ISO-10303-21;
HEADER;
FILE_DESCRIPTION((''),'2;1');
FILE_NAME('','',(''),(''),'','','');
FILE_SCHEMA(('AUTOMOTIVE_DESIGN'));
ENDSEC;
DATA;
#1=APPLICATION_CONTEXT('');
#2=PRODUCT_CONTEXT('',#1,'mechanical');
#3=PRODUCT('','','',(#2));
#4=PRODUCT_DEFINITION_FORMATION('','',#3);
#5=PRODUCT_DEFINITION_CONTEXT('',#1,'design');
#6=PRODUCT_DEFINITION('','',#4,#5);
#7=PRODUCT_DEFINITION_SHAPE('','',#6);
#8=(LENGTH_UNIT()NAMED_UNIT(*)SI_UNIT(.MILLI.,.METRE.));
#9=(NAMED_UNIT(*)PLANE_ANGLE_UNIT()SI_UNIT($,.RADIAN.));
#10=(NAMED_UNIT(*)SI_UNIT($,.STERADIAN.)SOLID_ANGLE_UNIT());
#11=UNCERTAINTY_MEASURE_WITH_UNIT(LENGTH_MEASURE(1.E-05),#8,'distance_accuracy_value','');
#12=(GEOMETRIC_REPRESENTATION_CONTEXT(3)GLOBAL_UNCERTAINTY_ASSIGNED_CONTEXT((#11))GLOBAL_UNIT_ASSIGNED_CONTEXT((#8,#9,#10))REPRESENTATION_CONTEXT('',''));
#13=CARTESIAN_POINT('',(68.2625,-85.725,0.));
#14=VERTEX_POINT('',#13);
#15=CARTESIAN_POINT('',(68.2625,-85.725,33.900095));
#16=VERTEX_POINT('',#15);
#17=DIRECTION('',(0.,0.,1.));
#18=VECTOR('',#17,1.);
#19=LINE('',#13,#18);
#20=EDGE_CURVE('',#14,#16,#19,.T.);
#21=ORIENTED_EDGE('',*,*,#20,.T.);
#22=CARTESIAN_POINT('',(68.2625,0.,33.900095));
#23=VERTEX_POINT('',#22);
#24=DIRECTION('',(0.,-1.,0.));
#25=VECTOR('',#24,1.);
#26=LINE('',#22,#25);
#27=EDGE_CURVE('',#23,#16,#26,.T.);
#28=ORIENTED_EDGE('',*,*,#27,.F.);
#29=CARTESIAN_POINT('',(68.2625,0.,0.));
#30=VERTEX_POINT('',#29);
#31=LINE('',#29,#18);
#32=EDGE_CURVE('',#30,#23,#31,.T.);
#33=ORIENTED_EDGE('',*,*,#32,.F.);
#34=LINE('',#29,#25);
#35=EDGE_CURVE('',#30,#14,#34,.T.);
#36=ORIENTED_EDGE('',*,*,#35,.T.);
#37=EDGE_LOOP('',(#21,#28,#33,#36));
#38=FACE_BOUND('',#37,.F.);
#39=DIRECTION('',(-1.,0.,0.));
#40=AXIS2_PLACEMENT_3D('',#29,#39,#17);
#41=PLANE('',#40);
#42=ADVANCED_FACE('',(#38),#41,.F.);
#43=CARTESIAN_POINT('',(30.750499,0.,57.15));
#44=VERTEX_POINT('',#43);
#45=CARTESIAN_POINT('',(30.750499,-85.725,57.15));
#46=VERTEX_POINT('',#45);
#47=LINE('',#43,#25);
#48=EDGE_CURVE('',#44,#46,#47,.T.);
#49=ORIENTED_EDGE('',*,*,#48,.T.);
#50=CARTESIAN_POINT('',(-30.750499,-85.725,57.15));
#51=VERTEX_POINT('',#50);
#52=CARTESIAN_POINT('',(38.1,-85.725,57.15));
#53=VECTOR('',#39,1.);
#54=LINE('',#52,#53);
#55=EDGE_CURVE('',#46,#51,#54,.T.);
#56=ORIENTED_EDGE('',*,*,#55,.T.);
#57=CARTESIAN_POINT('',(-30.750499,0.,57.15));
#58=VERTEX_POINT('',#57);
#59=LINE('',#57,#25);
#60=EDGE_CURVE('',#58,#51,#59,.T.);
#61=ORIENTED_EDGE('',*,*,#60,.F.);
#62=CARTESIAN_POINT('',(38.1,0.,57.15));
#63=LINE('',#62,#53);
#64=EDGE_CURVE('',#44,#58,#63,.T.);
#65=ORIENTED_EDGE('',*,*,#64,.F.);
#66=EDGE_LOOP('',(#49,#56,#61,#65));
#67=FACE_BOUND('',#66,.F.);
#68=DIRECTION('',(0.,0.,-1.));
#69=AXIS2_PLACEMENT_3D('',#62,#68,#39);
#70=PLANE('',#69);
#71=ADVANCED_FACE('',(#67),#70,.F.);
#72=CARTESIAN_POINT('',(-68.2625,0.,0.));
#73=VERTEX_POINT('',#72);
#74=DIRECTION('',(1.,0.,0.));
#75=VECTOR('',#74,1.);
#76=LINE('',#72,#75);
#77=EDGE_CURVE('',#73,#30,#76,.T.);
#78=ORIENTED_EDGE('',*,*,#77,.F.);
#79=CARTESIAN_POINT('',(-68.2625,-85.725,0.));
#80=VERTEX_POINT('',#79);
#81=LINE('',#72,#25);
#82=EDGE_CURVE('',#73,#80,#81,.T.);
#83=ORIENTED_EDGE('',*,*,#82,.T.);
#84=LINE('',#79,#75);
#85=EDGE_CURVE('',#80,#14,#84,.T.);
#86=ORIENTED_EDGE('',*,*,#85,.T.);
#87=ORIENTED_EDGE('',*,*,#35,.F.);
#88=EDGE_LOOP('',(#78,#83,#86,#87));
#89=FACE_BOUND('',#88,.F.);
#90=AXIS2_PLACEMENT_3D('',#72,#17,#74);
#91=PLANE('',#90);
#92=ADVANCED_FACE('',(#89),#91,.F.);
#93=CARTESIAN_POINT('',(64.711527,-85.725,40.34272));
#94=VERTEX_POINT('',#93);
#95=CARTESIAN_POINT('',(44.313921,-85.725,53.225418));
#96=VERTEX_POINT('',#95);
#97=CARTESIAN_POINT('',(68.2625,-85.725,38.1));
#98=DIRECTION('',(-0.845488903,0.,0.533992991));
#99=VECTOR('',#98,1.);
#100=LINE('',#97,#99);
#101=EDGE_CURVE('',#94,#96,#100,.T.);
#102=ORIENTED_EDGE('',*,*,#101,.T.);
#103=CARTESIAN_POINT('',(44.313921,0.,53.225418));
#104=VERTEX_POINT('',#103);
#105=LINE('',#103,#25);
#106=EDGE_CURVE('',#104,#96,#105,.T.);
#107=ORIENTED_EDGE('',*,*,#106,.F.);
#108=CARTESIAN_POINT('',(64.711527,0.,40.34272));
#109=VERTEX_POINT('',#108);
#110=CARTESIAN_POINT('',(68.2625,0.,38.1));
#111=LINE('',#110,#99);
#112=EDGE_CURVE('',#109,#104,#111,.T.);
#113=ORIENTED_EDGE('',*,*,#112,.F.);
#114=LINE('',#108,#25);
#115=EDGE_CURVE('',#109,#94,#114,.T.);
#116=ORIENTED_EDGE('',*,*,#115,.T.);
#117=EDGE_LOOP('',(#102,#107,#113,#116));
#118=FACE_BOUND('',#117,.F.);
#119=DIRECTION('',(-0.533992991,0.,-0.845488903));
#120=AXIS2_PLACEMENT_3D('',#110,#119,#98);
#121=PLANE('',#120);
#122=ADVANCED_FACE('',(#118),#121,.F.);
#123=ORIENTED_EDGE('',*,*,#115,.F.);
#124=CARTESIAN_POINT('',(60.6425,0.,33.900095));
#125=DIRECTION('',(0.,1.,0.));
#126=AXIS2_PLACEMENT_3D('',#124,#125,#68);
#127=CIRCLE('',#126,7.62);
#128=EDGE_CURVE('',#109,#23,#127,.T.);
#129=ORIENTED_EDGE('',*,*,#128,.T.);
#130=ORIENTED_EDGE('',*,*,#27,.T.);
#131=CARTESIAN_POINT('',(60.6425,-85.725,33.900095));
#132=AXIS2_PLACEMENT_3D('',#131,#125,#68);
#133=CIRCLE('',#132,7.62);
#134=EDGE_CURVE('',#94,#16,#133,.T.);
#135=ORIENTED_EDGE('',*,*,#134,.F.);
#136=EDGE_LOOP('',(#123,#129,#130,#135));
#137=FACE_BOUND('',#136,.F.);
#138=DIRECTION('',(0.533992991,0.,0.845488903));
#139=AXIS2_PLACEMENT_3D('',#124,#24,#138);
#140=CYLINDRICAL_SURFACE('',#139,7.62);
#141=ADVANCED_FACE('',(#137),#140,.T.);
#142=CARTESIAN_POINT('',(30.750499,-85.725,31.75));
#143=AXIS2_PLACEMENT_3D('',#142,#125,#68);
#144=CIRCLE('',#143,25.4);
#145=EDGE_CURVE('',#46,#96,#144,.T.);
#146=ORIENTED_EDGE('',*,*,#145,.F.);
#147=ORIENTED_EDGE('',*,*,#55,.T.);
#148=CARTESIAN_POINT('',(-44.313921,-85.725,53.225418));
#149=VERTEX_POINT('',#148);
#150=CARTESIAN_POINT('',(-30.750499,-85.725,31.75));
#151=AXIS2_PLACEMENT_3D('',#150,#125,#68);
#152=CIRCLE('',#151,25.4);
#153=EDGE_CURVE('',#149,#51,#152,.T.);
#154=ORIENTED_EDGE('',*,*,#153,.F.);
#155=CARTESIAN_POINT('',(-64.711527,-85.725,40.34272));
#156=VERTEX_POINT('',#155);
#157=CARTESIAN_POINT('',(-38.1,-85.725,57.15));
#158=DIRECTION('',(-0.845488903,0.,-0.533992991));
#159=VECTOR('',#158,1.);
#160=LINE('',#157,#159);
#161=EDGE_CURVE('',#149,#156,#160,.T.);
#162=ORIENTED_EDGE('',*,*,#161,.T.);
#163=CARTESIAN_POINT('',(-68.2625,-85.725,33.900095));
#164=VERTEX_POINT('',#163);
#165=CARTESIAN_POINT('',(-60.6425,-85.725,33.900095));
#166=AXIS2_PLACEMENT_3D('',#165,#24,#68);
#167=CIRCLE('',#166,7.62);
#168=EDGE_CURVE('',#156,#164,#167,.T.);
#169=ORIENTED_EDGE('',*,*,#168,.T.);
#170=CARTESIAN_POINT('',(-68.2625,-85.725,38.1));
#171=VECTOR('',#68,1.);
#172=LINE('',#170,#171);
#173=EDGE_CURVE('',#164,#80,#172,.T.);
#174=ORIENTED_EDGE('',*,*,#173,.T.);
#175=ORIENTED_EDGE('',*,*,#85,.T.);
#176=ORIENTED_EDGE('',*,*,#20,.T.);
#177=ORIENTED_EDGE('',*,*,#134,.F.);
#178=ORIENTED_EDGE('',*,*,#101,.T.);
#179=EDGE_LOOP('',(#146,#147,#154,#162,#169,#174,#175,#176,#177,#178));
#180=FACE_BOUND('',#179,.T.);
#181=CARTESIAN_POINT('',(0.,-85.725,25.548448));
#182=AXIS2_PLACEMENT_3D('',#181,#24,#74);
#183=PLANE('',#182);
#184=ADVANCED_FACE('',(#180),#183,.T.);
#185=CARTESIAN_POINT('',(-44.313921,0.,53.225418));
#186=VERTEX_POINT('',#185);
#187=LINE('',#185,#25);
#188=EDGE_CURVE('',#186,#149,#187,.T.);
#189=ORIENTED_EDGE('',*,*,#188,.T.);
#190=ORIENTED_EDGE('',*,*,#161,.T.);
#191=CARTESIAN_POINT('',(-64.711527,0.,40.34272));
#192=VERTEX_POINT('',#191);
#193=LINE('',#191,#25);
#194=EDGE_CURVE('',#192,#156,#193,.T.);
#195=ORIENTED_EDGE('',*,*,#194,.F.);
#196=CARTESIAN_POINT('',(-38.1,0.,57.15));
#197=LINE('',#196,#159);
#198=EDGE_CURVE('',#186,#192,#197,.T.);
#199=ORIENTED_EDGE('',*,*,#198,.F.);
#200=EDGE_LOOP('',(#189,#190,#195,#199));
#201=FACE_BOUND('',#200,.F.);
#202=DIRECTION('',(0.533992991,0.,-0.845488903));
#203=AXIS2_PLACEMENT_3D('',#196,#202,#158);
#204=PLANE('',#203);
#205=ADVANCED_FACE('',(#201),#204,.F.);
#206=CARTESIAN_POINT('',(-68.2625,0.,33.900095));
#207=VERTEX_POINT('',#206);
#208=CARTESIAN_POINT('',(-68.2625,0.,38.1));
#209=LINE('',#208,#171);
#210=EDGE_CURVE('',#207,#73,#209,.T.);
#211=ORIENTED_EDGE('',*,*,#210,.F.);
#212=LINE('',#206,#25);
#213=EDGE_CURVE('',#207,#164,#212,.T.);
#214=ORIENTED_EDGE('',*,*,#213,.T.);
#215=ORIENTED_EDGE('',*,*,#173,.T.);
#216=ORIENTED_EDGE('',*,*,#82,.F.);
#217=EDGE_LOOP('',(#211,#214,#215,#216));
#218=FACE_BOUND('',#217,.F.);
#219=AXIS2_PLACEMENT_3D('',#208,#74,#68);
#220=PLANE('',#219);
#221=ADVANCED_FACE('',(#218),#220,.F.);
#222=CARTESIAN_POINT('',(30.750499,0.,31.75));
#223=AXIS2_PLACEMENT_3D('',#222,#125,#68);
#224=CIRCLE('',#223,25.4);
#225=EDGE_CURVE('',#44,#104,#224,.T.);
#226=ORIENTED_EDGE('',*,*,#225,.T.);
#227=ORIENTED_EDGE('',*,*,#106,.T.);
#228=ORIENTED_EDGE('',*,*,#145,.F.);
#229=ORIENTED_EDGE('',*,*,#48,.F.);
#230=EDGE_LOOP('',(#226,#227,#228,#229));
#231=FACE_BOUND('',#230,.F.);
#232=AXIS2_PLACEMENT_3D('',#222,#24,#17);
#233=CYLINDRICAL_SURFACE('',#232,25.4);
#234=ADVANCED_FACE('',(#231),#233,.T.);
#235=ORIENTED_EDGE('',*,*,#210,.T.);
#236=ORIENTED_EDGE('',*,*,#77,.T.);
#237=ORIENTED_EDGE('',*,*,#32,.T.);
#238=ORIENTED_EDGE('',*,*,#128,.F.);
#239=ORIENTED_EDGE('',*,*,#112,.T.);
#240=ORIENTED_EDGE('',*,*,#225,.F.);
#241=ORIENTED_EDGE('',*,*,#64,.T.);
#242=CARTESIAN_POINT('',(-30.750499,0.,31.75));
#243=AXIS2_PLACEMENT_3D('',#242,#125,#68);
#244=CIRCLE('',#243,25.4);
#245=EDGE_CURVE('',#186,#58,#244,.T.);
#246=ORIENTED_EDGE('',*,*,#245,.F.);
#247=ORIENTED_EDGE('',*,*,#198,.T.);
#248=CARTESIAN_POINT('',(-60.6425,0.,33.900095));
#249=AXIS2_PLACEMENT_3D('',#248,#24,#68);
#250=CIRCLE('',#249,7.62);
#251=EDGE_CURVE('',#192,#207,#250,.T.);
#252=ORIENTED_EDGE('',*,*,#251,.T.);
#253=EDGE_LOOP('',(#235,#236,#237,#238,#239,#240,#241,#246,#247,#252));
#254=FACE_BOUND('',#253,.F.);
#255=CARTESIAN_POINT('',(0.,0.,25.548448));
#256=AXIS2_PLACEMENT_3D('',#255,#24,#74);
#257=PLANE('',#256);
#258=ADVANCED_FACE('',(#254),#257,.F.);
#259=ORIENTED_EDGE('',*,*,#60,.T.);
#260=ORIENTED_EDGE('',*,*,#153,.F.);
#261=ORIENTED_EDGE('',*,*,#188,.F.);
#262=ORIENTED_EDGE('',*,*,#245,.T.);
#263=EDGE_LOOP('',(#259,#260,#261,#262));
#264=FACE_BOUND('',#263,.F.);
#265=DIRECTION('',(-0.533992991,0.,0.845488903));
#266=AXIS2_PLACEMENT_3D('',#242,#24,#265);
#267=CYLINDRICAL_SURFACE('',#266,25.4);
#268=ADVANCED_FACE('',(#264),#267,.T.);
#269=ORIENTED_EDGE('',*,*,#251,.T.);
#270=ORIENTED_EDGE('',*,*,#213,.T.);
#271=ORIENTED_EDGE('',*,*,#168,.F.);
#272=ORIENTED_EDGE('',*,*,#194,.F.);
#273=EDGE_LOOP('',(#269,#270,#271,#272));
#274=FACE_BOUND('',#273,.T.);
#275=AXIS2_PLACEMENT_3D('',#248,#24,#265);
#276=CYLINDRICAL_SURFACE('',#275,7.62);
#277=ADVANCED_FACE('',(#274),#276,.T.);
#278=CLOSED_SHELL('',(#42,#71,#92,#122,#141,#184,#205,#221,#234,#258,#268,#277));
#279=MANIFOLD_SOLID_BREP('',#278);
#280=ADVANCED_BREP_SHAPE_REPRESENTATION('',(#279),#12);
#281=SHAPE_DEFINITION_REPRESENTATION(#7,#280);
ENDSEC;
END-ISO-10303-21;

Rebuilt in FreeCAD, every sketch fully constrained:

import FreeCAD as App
import Part
import Sketcher
from FreeCAD import Vector
Q = App.Units.Quantity


def edges_at(feature, points):
    """Names of the edges that pass closest to the given points."""
    edges = feature.Shape.Edges
    near = lambda p: min(range(len(edges)), key=lambda i: edges[i].distToShape(Part.Vertex(*p))[0])
    return sorted({f"Edge{near(p) + 1}" for p in points})

doc = App.newDocument("Part")
params = doc.addObject("Spreadsheet::Sheet", "Params")
for row, (alias, value) in enumerate([
    ("sketch1_width", "3 in"),
    ("sketch1_height", "1.5 in"),
    ("sketch1_width2", "5.375 in"),
    ("pad1_length", "3.375 in"),
    ("fillet_radius", "0.3 in"),
    ("fillet2_radius", "1 in"),
    ("fillet3_radius", "1 in"),
    ("fillet4_radius", "0.3 in"),
], start=1):
    params.set(f"A{row}", alias)
    params.set(f"B{row}", "=" + value)
    params.setAlias(f"B{row}", alias)

body = doc.addObject("PartDesign::Body", "Body")

# Sketch on XZ plane
sketch1 = doc.addObject("Sketcher::SketchObject", "Sketch")
body.addObject(sketch1)
sketch1.AttachmentSupport = (doc.XZ_Plane, [""])
sketch1.MapMode = "FlatFace"
sketch1.addGeometry(Part.LineSegment(Vector(-68, 0, 0), Vector(68, 0, 0)), False)
sketch1.addGeometry(Part.LineSegment(Vector(68, 0, 0), Vector(68, 38, 0)), False)
sketch1.addGeometry(Part.LineSegment(Vector(68, 38, 0), Vector(38, 57, 0)), False)
sketch1.addGeometry(Part.LineSegment(Vector(38, 57, 0), Vector(-38, 57, 0)), False)
sketch1.addGeometry(Part.LineSegment(Vector(-38, 57, 0), Vector(-68, 38, 0)), False)
sketch1.addGeometry(Part.LineSegment(Vector(-68, 38, 0), Vector(-68, 0, 0)), False)
sketch1.addConstraint(Sketcher.Constraint("Coincident", 0, 2, 1, 1))
sketch1.addConstraint(Sketcher.Constraint("Coincident", 1, 2, 2, 1))
sketch1.addConstraint(Sketcher.Constraint("Coincident", 2, 2, 3, 1))
sketch1.addConstraint(Sketcher.Constraint("Coincident", 3, 2, 4, 1))
sketch1.addConstraint(Sketcher.Constraint("Coincident", 4, 2, 5, 1))
sketch1.addConstraint(Sketcher.Constraint("Coincident", 5, 2, 0, 1))
sketch1.addConstraint(Sketcher.Constraint("Horizontal", 0))
sketch1.addConstraint(Sketcher.Constraint("Vertical", 1))
sketch1.addConstraint(Sketcher.Constraint("Horizontal", 3))
sketch1.addConstraint(Sketcher.Constraint("Vertical", 5))
sketch1.addConstraint(Sketcher.Constraint("Symmetric", 0, 2, 5, 2, -1, 1))
sketch1.addConstraint(Sketcher.Constraint("Horizontal", 1, 2, 4, 2))
sketch1.addConstraint(Sketcher.Constraint("Equal", 2, 4))
sketch1.addConstraint(Sketcher.Constraint("DistanceX", 3, 2, 3, 1, Q("3 in")))
sketch1.addConstraint(Sketcher.Constraint("DistanceY", 1, 1, 1, 2, Q("1.5 in")))
sketch1.addConstraint(Sketcher.Constraint("DistanceX", 0, 1, 0, 2, Q("5.375 in")))
sketch1.addConstraint(Sketcher.Constraint("DistanceY", -1, 1, 2, 2, Q("2.25 in")))
sketch1.setExpression("Constraints[13]", "Params.sketch1_width")
sketch1.setExpression("Constraints[14]", "Params.sketch1_height")
sketch1.setExpression("Constraints[15]", "Params.sketch1_width2")
pad1 = doc.addObject("PartDesign::Pad", "Pad")
body.addObject(pad1)
pad1.Profile = sketch1
pad1.setExpression("Length", "Params.pad1_length")
doc.recompute()

fillet = doc.addObject("PartDesign::Fillet", "Fillet")
body.addObject(fillet)
fillet.Base = (pad1, edges_at(pad1, [(-68.263, -42.862, 38.1)]))
fillet.setExpression("Radius", "Params.fillet_radius")
doc.recompute()

fillet2 = doc.addObject("PartDesign::Fillet", "Fillet001")
body.addObject(fillet2)
fillet2.Base = (fillet, edges_at(fillet, [(-38.1, -42.862, 57.15)]))
fillet2.setExpression("Radius", "Params.fillet2_radius")
doc.recompute()

fillet3 = doc.addObject("PartDesign::Fillet", "Fillet002")
body.addObject(fillet3)
fillet3.Base = (fillet2, edges_at(fillet2, [(38.1, -42.862, 57.15)]))
fillet3.setExpression("Radius", "Params.fillet3_radius")
doc.recompute()

fillet4 = doc.addObject("PartDesign::Fillet", "Fillet003")
body.addObject(fillet4)
fillet4.Base = (fillet3, edges_at(fillet3, [(68.263, -42.862, 38.1)]))
fillet4.setExpression("Radius", "Params.fillet4_radius")

doc.recompute()
